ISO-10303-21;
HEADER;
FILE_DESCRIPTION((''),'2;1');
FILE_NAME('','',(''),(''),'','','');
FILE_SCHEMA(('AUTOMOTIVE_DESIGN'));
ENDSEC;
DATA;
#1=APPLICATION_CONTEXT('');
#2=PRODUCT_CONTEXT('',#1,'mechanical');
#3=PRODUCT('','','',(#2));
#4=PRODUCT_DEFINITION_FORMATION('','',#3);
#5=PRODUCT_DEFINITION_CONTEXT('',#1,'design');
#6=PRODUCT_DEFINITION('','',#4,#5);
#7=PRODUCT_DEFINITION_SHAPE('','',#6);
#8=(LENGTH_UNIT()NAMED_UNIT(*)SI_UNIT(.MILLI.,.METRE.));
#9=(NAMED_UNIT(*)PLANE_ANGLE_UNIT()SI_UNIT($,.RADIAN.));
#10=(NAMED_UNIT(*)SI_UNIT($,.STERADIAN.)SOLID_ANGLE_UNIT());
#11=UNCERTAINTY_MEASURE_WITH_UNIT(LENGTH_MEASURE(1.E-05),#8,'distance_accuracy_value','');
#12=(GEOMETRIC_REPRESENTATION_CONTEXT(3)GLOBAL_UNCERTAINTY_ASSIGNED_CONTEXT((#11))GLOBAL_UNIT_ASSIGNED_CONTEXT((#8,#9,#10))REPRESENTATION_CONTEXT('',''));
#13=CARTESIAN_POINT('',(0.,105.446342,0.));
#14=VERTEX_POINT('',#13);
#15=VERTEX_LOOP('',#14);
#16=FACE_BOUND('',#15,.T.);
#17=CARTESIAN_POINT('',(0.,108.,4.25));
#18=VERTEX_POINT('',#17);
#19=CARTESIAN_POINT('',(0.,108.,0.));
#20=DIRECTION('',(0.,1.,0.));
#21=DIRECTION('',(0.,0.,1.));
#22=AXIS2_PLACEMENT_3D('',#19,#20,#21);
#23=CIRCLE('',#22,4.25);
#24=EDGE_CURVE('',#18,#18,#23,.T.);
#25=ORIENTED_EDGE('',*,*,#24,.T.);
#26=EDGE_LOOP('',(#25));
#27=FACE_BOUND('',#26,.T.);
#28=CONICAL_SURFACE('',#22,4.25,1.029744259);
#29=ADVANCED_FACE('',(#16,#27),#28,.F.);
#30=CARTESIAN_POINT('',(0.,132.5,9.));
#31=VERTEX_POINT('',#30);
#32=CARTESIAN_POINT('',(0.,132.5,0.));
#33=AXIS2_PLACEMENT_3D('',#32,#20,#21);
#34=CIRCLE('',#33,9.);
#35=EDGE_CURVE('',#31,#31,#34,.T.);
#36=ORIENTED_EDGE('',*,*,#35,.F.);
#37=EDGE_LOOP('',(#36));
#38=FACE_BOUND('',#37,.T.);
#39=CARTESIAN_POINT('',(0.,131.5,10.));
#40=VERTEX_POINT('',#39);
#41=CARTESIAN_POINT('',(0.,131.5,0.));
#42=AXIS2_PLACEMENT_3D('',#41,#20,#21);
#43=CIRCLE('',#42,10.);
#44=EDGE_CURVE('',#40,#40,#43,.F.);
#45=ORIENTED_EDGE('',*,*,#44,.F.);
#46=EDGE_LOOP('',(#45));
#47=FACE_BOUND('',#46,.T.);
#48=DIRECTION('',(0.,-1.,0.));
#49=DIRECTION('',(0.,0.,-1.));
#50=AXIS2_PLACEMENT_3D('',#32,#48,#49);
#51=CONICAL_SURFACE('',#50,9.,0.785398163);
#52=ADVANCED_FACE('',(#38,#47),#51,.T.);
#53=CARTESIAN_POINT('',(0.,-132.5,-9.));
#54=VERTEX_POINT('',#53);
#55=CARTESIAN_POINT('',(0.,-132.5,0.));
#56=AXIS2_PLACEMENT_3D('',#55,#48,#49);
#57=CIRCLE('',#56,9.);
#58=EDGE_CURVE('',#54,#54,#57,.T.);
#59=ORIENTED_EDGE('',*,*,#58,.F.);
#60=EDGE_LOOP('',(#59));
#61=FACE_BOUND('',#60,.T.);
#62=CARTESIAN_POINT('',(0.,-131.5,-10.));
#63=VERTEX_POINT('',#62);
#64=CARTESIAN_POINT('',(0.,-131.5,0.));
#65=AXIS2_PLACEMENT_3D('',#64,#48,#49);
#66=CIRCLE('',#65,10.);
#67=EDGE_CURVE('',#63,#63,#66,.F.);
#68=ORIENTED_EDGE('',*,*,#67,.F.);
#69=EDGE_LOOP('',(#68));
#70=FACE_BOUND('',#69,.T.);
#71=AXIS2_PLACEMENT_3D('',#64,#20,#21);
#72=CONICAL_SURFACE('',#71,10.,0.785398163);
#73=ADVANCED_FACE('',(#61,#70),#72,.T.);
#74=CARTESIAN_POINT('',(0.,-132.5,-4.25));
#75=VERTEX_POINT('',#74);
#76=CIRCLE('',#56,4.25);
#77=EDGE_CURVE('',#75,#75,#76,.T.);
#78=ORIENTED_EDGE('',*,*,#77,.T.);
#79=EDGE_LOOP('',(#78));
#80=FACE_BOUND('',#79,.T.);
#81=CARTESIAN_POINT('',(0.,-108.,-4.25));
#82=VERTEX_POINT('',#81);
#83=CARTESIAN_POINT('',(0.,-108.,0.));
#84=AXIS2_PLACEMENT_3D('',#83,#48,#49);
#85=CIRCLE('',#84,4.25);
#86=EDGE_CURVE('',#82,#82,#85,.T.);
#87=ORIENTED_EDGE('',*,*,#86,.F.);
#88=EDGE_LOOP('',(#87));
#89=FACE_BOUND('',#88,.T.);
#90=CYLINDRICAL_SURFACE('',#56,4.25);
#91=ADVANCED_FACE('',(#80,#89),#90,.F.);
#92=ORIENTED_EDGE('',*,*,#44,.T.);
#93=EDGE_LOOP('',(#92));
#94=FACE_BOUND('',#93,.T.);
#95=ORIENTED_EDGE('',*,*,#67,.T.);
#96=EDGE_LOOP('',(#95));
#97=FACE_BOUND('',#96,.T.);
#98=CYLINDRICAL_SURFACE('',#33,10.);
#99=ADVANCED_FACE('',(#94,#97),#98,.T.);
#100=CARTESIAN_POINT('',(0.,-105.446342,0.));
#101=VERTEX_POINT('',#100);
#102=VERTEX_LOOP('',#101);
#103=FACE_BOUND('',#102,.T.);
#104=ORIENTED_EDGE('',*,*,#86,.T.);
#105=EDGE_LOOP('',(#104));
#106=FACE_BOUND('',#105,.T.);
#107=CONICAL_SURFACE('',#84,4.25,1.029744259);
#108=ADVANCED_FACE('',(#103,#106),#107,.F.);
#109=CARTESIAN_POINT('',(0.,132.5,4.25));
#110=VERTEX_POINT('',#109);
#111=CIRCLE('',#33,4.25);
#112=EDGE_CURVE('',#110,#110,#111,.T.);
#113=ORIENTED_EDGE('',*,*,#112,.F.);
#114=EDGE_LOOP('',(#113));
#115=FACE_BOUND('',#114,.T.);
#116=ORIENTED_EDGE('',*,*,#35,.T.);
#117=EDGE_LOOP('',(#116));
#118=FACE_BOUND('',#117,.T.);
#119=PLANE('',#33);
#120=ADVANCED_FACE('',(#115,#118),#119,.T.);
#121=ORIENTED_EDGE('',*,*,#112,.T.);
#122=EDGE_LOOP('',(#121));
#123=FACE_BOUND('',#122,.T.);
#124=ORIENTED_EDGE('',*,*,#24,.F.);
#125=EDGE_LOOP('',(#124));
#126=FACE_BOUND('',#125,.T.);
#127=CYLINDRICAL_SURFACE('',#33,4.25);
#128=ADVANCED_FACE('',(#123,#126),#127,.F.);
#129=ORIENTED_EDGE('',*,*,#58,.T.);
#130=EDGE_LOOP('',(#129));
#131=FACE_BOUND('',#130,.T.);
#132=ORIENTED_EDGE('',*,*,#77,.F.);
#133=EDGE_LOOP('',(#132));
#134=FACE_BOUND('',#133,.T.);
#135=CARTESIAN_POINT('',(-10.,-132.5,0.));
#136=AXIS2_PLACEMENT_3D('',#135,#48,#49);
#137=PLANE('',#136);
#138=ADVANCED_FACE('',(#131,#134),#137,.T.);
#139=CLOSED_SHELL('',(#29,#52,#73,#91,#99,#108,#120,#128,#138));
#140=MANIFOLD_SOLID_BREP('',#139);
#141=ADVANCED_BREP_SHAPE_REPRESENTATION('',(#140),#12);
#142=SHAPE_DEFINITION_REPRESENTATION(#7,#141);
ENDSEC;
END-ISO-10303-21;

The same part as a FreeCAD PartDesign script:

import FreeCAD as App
import Part
import Sketcher

V = App.Vector
Q = App.Units.Quantity


def edges_at(feature, points):
    """Names of the edges that pass closest to the given points."""
    edges = feature.Shape.Edges
    near = lambda p: min(range(len(edges)), key=lambda i: edges[i].distToShape(Part.Vertex(*p))[0])
    return sorted({f"Edge{near(p) + 1}" for p in points})

doc = App.newDocument("Part")
params = doc.addObject("Spreadsheet::Sheet", "Params")
for row, (alias, value) in enumerate([
    ("sketch1_width", "10 mm"),
    ("sketch1_height", "265 mm"),
    ("revolution_angle", "360 deg"),
    ("sketch2_width", "24.5 mm"),
    ("sketch2_height", "4.25 mm"),
    ("groove_angle", "360 deg"),
    ("chamfer_size", "1 mm"),
], start=1):
    params.set(f"A{row}", alias)
    params.set(f"B{row}", "=" + value)
    params.setAlias(f"B{row}", alias)

body = doc.addObject("PartDesign::Body", "Body")

sketch1 = body.newObject("Sketcher::SketchObject", "Sketch")
sketch1.AttachmentSupport = (doc.getObject("XY_Plane"), [""])
sketch1.MapMode = "FlatFace"
sketch1.addGeometry(Part.LineSegment(V(-10, 132.5, 0), V(-10, -132.5, 0)), False)
sketch1.addGeometry(Part.LineSegment(V(-10, -132.5, 0), V(0, -132.5, 0)), False)
sketch1.addGeometry(Part.LineSegment(V(0, -132.5, 0), V(0, 132.5, 0)), False)
sketch1.addGeometry(Part.LineSegment(V(0, 132.5, 0), V(-10, 132.5, 0)), False)
sketch1.addConstraint(Sketcher.Constraint("Coincident", 0, 2, 1, 1))
sketch1.addConstraint(Sketcher.Constraint("Coincident", 1, 2, 2, 1))
sketch1.addConstraint(Sketcher.Constraint("Coincident", 2, 2, 3, 1))
sketch1.addConstraint(Sketcher.Constraint("Coincident", 3, 2, 0, 1))
sketch1.addConstraint(Sketcher.Constraint("Vertical", 0))
sketch1.addConstraint(Sketcher.Constraint("Horizontal", 1))
sketch1.addConstraint(Sketcher.Constraint("Vertical", 2))
sketch1.addConstraint(Sketcher.Constraint("Horizontal", 3))
sketch1.addConstraint(Sketcher.Constraint("Symmetric", 1, 2, 2, 2, -1, 1))
sketch1.addConstraint(Sketcher.Constraint("DistanceX", 1, 1, 1, 2, Q("10 mm")))
sketch1.addConstraint(Sketcher.Constraint("DistanceY", 0, 2, 0, 1, Q("265 mm")))
sketch1.setExpression("Constraints[9]", "Params.sketch1_width")
sketch1.setExpression("Constraints[10]", "Params.sketch1_height")
revolution = body.newObject("PartDesign::Revolution", "Revolution")
revolution.Profile = sketch1
revolution.ReferenceAxis = (sketch1, ["V_Axis"])
revolution.setExpression("Angle", "Params.revolution_angle")

sketch2 = body.newObject("Sketcher::SketchObject", "Sketch001")
sketch2.AttachmentSupport = (doc.getObject("YZ_Plane"), [""])
sketch2.MapMode = "FlatFace"
sketch2.addGeometry(Part.LineSegment(V(-105.446342, 0, 0), V(-132.5, 0, 0)), False)
sketch2.addGeometry(Part.LineSegment(V(-132.5, 0, 0), V(-132.5, -4.25, 0)), False)
sketch2.addGeometry(Part.LineSegment(V(-132.5, -4.25, 0), V(-108, -4.25, 0)), False)
sketch2.addGeometry(Part.LineSegment(V(-108, -4.25, 0), V(-105.446342, 0, 0)), False)
sketch2.addConstraint(Sketcher.Constraint("Coincident", 0, 2, 1, 1))
sketch2.addConstraint(Sketcher.Constraint("Coincident", 1, 2, 2, 1))
sketch2.addConstraint(Sketcher.Constraint("Coincident", 2, 2, 3, 1))
sketch2.addConstraint(Sketcher.Constraint("Coincident", 3, 2, 0, 1))
sketch2.addConstraint(Sketcher.Constraint("Horizontal", 0))
sketch2.addConstraint(Sketcher.Constraint("Vertical", 1))
sketch2.addConstraint(Sketcher.Constraint("Horizontal", 2))
sketch2.addConstraint(Sketcher.Constraint("PointOnObject", 0, 2, -1))
sketch2.addConstraint(Sketcher.Constraint("Angle", 3, Q("59 deg")))
sketch2.addConstraint(Sketcher.Constraint("DistanceX", 2, 1, 2, 2, Q("24.5 mm")))
sketch2.addConstraint(Sketcher.Constraint("DistanceX", 2, 2, -1, 1, Q("108 mm")))
sketch2.addConstraint(Sketcher.Constraint("DistanceY", 1, 2, 1, 1, Q("4.25 mm")))
sketch2.setExpression("Constraints[9]", "Params.sketch2_width")
sketch2.setExpression("Constraints[11]", "Params.sketch2_height")
groove = body.newObject("PartDesign::Groove", "Groove")
groove.Profile = sketch2
groove.ReferenceAxis = (sketch2, ["H_Axis"])
groove.setExpression("Angle", "Params.groove_angle")
doc.recompute()

mirrored = body.newObject("PartDesign::Mirrored", "Mirrored")
mirrored.Originals = [groove]
mirrored.MirrorPlane = (doc.getObject("XZ_Plane"), [""])
body.Tip = mirrored
doc.recompute()

chamfer = body.newObject("PartDesign::Chamfer", "Chamfer")
chamfer.Base = (mirrored, edges_at(mirrored, [(10, -132.5, 0), (10, 132.5, 0)]))
chamfer.setExpression("Size", "Params.chamfer_size")

doc.recompute()
